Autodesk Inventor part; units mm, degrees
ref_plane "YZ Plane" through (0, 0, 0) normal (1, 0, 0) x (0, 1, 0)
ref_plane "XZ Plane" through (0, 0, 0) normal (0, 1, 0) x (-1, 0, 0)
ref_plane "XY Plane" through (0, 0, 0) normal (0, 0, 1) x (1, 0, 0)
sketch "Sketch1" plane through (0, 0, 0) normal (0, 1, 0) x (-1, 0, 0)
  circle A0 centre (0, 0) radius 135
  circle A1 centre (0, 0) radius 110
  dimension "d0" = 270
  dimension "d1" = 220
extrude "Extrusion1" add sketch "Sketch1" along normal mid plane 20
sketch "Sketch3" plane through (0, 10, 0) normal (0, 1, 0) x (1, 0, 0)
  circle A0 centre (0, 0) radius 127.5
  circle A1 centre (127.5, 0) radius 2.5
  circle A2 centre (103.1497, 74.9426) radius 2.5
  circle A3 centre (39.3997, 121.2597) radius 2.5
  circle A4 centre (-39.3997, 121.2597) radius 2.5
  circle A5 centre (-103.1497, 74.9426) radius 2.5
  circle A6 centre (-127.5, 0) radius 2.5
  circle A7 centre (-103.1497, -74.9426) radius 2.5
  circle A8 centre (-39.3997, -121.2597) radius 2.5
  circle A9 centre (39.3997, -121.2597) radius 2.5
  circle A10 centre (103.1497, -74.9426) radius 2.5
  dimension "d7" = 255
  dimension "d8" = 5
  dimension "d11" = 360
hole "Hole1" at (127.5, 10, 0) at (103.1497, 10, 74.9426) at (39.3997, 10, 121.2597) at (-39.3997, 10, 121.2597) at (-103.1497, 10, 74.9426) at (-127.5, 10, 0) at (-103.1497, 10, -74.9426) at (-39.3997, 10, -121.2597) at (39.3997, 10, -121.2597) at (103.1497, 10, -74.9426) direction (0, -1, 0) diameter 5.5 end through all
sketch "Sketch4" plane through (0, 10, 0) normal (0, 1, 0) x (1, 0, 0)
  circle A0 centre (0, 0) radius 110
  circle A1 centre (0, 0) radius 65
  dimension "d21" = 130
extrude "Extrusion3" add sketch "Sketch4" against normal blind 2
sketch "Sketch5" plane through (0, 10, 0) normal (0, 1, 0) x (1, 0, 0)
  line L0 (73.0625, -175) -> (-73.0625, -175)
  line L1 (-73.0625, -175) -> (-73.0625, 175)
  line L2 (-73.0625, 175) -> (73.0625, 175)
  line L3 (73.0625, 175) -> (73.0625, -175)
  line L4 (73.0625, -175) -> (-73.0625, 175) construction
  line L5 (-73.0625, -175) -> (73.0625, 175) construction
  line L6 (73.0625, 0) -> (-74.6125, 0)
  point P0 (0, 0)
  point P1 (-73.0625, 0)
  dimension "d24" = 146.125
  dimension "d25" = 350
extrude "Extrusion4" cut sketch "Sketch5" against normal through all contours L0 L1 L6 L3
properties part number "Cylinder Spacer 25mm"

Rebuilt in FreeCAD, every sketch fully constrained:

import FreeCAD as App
import Part
import Sketcher

doc = App.newDocument("Part")
body = doc.addObject("PartDesign::Body", "Body")

# Sketch on XZ plane
sketch1 = doc.addObject("Sketcher::SketchObject", "Sketch")
body.addObject(sketch1)
sketch1.AttachmentSupport = (doc.XZ_Plane, [""])
sketch1.MapMode = "FlatFace"
sketch1.addGeometry([
    Part.Circle(App.Vector(0, 0, 0), App.Vector(0, 0, 1), 135),
    Part.Circle(App.Vector(0, 0, 0), App.Vector(0, 0, 1), 110),
], False)
sketch1.addConstraint([
    Sketcher.Constraint("Coincident", 0, 3, -1, 1),
    Sketcher.Constraint("Coincident", 1, 3, -1, 1),
    Sketcher.Constraint("Diameter", 0, 270.0),
    Sketcher.Constraint("Diameter", 1, 220.0),
])
pad1 = doc.addObject("PartDesign::Pad", "Pad")
body.addObject(pad1)
pad1.Profile = sketch1
pad1.Length = 20
pad1.Midplane = True

# Sketch on XZ plane
sketch2 = doc.addObject("Sketcher::SketchObject", "Sketch001")
body.addObject(sketch2)
sketch2.AttachmentSupport = (doc.XZ_Plane, [""])
sketch2.MapMode = "FlatFace"
sketch2.AttachmentOffset = App.Placement(App.Vector(0, 0, -10), App.Rotation())
sketch2.addGeometry([
    Part.Circle(App.Vector(127.5, 0, 0), App.Vector(0, 0, 1), 2.75),  # 0
    Part.Circle(App.Vector(103.1497, 74.9426, 0), App.Vector(0, 0, 1), 2.75),  # 1
    Part.Circle(App.Vector(39.3997, 121.2597, 0), App.Vector(0, 0, 1), 2.75),  # 2
    Part.Circle(App.Vector(-39.3997, 121.2597, 0), App.Vector(0, 0, 1), 2.75),  # 3
    Part.Circle(App.Vector(-103.1497, 74.9426, 0), App.Vector(0, 0, 1), 2.75),  # 4
    Part.Circle(App.Vector(-127.5, 0, 0), App.Vector(0, 0, 1), 2.75),  # 5
    Part.Circle(App.Vector(-103.1497, -74.9426, 0), App.Vector(0, 0, 1), 2.75),  # 6
    Part.Circle(App.Vector(-39.3997, -121.2597, 0), App.Vector(0, 0, 1), 2.75),  # 7
    Part.Circle(App.Vector(39.3997, -121.2597, 0), App.Vector(0, 0, 1), 2.75),  # 8
    Part.Circle(App.Vector(103.1497, -74.9426, 0), App.Vector(0, 0, 1), 2.75),  # 9
], False)
sketch2.addConstraint([
    Sketcher.Constraint("Equal", 0, 1),
    Sketcher.Constraint("Equal", 1, 2),
    Sketcher.Constraint("Equal", 2, 3),
    Sketcher.Constraint("Equal", 3, 4),
    Sketcher.Constraint("Equal", 4, 5),
    Sketcher.Constraint("Equal", 5, 6),
    Sketcher.Constraint("Equal", 6, 7),
    Sketcher.Constraint("Equal", 7, 8),
    Sketcher.Constraint("Equal", 8, 9),
    Sketcher.Constraint("Symmetric", 0, 3, 5, 3, -1, 1),
    Sketcher.Constraint("Symmetric", 1, 3, 6, 3, -1, 1),
    Sketcher.Constraint("Symmetric", 2, 3, 7, 3, -1, 1),
    Sketcher.Constraint("Symmetric", 3, 3, 8, 3, -1, 1),
    Sketcher.Constraint("Symmetric", 4, 3, 9, 3, -1, 1),
    Sketcher.Constraint("Symmetric", 2, 3, 3, 3, -2),
    Sketcher.Constraint("Symmetric", 1, 3, 4, 3, -2),
    Sketcher.Constraint("PointOnObject", 0, 3, -1),
    Sketcher.Constraint("Diameter", 0, 5.5),
    Sketcher.Constraint("DistanceX", 5, 3, 0, 3, 255.0),
    Sketcher.Constraint("DistanceX", 2, 3, 1, 3, 63.75),
    Sketcher.Constraint("DistanceY", 1, 3, 2, 3, 46.317),
    Sketcher.Constraint("DistanceX", -1, 1, 1, 3, 103.1497),
    Sketcher.Constraint("DistanceY", -1, 1, 1, 3, 74.9426),
])
doc.recompute()
hole = doc.addObject("PartDesign::Hole", "Hole")
body.addObject(hole)
hole.Profile = sketch2
hole.ThreadType = "None"
hole.Diameter = 5.5
hole.DepthType = "ThroughAll"
hole.Reversed = True

# Sketch on XZ plane
sketch3 = doc.addObject("Sketcher::SketchObject", "Sketch002")
body.addObject(sketch3)
sketch3.AttachmentSupport = (doc.XZ_Plane, [""])
sketch3.MapMode = "FlatFace"
sketch3.AttachmentOffset = App.Placement(App.Vector(0, 0, -10), App.Rotation())
sketch3.addGeometry([
    Part.Circle(App.Vector(0, 0, 0), App.Vector(0, 0, 1), 110),
    Part.Circle(App.Vector(0, 0, 0), App.Vector(0, 0, 1), 65),
], False)
sketch3.addConstraint([
    Sketcher.Constraint("Coincident", 0, 3, -1, 1),
    Sketcher.Constraint("Coincident", 1, 3, -1, 1),
    Sketcher.Constraint("Diameter", 1, 130.0),
    Sketcher.Constraint("Diameter", 0, 220.0),
])
pad2 = doc.addObject("PartDesign::Pad", "Pad001")
body.addObject(pad2)
pad2.Profile = sketch3
pad2.Length = 2

# Sketch on XZ plane
sketch4 = doc.addObject("Sketcher::SketchObject", "Sketch003")
body.addObject(sketch4)
sketch4.AttachmentSupport = (doc.XZ_Plane, [""])
sketch4.MapMode = "FlatFace"
sketch4.AttachmentOffset = App.Placement(App.Vector(0, 0, -10), App.Rotation())
sketch4.addGeometry([
    Part.LineSegment(App.Vector(-73.0625, 175, 0), App.Vector(73.0625, 175, 0)),
    Part.LineSegment(App.Vector(73.0625, 175, 0), App.Vector(73.0625, 0, 0)),
    Part.LineSegment(App.Vector(73.0625, 0, 0), App.Vector(-73.0625, 0, 0)),
    Part.LineSegment(App.Vector(-73.0625, 0, 0), App.Vector(-73.0625, 175, 0)),
], False)
sketch4.addConstraint([
    Sketcher.Constraint("Coincident", 0, 2, 1, 1),
    Sketcher.Constraint("Coincident", 1, 2, 2, 1),
    Sketcher.Constraint("Coincident", 2, 2, 3, 1),
    Sketcher.Constraint("Coincident", 3, 2, 0, 1),
    Sketcher.Constraint("Horizontal", 0),
    Sketcher.Constraint("Vertical", 1),
    Sketcher.Constraint("Horizontal", 2),
    Sketcher.Constraint("Vertical", 3),
    Sketcher.Constraint("Symmetric", 1, 2, 2, 2, -1, 1),
    Sketcher.Constraint("DistanceX", 0, 1, 0, 2, 146.125),
    Sketcher.Constraint("DistanceY", 1, 2, 1, 1, 175.0),
])
pocket1 = doc.addObject("PartDesign::Pocket", "Pocket")
body.addObject(pocket1)
pocket1.Profile = sketch4
pocket1.Type = "ThroughAll"
pocket1.Reversed = True

doc.recompute()
